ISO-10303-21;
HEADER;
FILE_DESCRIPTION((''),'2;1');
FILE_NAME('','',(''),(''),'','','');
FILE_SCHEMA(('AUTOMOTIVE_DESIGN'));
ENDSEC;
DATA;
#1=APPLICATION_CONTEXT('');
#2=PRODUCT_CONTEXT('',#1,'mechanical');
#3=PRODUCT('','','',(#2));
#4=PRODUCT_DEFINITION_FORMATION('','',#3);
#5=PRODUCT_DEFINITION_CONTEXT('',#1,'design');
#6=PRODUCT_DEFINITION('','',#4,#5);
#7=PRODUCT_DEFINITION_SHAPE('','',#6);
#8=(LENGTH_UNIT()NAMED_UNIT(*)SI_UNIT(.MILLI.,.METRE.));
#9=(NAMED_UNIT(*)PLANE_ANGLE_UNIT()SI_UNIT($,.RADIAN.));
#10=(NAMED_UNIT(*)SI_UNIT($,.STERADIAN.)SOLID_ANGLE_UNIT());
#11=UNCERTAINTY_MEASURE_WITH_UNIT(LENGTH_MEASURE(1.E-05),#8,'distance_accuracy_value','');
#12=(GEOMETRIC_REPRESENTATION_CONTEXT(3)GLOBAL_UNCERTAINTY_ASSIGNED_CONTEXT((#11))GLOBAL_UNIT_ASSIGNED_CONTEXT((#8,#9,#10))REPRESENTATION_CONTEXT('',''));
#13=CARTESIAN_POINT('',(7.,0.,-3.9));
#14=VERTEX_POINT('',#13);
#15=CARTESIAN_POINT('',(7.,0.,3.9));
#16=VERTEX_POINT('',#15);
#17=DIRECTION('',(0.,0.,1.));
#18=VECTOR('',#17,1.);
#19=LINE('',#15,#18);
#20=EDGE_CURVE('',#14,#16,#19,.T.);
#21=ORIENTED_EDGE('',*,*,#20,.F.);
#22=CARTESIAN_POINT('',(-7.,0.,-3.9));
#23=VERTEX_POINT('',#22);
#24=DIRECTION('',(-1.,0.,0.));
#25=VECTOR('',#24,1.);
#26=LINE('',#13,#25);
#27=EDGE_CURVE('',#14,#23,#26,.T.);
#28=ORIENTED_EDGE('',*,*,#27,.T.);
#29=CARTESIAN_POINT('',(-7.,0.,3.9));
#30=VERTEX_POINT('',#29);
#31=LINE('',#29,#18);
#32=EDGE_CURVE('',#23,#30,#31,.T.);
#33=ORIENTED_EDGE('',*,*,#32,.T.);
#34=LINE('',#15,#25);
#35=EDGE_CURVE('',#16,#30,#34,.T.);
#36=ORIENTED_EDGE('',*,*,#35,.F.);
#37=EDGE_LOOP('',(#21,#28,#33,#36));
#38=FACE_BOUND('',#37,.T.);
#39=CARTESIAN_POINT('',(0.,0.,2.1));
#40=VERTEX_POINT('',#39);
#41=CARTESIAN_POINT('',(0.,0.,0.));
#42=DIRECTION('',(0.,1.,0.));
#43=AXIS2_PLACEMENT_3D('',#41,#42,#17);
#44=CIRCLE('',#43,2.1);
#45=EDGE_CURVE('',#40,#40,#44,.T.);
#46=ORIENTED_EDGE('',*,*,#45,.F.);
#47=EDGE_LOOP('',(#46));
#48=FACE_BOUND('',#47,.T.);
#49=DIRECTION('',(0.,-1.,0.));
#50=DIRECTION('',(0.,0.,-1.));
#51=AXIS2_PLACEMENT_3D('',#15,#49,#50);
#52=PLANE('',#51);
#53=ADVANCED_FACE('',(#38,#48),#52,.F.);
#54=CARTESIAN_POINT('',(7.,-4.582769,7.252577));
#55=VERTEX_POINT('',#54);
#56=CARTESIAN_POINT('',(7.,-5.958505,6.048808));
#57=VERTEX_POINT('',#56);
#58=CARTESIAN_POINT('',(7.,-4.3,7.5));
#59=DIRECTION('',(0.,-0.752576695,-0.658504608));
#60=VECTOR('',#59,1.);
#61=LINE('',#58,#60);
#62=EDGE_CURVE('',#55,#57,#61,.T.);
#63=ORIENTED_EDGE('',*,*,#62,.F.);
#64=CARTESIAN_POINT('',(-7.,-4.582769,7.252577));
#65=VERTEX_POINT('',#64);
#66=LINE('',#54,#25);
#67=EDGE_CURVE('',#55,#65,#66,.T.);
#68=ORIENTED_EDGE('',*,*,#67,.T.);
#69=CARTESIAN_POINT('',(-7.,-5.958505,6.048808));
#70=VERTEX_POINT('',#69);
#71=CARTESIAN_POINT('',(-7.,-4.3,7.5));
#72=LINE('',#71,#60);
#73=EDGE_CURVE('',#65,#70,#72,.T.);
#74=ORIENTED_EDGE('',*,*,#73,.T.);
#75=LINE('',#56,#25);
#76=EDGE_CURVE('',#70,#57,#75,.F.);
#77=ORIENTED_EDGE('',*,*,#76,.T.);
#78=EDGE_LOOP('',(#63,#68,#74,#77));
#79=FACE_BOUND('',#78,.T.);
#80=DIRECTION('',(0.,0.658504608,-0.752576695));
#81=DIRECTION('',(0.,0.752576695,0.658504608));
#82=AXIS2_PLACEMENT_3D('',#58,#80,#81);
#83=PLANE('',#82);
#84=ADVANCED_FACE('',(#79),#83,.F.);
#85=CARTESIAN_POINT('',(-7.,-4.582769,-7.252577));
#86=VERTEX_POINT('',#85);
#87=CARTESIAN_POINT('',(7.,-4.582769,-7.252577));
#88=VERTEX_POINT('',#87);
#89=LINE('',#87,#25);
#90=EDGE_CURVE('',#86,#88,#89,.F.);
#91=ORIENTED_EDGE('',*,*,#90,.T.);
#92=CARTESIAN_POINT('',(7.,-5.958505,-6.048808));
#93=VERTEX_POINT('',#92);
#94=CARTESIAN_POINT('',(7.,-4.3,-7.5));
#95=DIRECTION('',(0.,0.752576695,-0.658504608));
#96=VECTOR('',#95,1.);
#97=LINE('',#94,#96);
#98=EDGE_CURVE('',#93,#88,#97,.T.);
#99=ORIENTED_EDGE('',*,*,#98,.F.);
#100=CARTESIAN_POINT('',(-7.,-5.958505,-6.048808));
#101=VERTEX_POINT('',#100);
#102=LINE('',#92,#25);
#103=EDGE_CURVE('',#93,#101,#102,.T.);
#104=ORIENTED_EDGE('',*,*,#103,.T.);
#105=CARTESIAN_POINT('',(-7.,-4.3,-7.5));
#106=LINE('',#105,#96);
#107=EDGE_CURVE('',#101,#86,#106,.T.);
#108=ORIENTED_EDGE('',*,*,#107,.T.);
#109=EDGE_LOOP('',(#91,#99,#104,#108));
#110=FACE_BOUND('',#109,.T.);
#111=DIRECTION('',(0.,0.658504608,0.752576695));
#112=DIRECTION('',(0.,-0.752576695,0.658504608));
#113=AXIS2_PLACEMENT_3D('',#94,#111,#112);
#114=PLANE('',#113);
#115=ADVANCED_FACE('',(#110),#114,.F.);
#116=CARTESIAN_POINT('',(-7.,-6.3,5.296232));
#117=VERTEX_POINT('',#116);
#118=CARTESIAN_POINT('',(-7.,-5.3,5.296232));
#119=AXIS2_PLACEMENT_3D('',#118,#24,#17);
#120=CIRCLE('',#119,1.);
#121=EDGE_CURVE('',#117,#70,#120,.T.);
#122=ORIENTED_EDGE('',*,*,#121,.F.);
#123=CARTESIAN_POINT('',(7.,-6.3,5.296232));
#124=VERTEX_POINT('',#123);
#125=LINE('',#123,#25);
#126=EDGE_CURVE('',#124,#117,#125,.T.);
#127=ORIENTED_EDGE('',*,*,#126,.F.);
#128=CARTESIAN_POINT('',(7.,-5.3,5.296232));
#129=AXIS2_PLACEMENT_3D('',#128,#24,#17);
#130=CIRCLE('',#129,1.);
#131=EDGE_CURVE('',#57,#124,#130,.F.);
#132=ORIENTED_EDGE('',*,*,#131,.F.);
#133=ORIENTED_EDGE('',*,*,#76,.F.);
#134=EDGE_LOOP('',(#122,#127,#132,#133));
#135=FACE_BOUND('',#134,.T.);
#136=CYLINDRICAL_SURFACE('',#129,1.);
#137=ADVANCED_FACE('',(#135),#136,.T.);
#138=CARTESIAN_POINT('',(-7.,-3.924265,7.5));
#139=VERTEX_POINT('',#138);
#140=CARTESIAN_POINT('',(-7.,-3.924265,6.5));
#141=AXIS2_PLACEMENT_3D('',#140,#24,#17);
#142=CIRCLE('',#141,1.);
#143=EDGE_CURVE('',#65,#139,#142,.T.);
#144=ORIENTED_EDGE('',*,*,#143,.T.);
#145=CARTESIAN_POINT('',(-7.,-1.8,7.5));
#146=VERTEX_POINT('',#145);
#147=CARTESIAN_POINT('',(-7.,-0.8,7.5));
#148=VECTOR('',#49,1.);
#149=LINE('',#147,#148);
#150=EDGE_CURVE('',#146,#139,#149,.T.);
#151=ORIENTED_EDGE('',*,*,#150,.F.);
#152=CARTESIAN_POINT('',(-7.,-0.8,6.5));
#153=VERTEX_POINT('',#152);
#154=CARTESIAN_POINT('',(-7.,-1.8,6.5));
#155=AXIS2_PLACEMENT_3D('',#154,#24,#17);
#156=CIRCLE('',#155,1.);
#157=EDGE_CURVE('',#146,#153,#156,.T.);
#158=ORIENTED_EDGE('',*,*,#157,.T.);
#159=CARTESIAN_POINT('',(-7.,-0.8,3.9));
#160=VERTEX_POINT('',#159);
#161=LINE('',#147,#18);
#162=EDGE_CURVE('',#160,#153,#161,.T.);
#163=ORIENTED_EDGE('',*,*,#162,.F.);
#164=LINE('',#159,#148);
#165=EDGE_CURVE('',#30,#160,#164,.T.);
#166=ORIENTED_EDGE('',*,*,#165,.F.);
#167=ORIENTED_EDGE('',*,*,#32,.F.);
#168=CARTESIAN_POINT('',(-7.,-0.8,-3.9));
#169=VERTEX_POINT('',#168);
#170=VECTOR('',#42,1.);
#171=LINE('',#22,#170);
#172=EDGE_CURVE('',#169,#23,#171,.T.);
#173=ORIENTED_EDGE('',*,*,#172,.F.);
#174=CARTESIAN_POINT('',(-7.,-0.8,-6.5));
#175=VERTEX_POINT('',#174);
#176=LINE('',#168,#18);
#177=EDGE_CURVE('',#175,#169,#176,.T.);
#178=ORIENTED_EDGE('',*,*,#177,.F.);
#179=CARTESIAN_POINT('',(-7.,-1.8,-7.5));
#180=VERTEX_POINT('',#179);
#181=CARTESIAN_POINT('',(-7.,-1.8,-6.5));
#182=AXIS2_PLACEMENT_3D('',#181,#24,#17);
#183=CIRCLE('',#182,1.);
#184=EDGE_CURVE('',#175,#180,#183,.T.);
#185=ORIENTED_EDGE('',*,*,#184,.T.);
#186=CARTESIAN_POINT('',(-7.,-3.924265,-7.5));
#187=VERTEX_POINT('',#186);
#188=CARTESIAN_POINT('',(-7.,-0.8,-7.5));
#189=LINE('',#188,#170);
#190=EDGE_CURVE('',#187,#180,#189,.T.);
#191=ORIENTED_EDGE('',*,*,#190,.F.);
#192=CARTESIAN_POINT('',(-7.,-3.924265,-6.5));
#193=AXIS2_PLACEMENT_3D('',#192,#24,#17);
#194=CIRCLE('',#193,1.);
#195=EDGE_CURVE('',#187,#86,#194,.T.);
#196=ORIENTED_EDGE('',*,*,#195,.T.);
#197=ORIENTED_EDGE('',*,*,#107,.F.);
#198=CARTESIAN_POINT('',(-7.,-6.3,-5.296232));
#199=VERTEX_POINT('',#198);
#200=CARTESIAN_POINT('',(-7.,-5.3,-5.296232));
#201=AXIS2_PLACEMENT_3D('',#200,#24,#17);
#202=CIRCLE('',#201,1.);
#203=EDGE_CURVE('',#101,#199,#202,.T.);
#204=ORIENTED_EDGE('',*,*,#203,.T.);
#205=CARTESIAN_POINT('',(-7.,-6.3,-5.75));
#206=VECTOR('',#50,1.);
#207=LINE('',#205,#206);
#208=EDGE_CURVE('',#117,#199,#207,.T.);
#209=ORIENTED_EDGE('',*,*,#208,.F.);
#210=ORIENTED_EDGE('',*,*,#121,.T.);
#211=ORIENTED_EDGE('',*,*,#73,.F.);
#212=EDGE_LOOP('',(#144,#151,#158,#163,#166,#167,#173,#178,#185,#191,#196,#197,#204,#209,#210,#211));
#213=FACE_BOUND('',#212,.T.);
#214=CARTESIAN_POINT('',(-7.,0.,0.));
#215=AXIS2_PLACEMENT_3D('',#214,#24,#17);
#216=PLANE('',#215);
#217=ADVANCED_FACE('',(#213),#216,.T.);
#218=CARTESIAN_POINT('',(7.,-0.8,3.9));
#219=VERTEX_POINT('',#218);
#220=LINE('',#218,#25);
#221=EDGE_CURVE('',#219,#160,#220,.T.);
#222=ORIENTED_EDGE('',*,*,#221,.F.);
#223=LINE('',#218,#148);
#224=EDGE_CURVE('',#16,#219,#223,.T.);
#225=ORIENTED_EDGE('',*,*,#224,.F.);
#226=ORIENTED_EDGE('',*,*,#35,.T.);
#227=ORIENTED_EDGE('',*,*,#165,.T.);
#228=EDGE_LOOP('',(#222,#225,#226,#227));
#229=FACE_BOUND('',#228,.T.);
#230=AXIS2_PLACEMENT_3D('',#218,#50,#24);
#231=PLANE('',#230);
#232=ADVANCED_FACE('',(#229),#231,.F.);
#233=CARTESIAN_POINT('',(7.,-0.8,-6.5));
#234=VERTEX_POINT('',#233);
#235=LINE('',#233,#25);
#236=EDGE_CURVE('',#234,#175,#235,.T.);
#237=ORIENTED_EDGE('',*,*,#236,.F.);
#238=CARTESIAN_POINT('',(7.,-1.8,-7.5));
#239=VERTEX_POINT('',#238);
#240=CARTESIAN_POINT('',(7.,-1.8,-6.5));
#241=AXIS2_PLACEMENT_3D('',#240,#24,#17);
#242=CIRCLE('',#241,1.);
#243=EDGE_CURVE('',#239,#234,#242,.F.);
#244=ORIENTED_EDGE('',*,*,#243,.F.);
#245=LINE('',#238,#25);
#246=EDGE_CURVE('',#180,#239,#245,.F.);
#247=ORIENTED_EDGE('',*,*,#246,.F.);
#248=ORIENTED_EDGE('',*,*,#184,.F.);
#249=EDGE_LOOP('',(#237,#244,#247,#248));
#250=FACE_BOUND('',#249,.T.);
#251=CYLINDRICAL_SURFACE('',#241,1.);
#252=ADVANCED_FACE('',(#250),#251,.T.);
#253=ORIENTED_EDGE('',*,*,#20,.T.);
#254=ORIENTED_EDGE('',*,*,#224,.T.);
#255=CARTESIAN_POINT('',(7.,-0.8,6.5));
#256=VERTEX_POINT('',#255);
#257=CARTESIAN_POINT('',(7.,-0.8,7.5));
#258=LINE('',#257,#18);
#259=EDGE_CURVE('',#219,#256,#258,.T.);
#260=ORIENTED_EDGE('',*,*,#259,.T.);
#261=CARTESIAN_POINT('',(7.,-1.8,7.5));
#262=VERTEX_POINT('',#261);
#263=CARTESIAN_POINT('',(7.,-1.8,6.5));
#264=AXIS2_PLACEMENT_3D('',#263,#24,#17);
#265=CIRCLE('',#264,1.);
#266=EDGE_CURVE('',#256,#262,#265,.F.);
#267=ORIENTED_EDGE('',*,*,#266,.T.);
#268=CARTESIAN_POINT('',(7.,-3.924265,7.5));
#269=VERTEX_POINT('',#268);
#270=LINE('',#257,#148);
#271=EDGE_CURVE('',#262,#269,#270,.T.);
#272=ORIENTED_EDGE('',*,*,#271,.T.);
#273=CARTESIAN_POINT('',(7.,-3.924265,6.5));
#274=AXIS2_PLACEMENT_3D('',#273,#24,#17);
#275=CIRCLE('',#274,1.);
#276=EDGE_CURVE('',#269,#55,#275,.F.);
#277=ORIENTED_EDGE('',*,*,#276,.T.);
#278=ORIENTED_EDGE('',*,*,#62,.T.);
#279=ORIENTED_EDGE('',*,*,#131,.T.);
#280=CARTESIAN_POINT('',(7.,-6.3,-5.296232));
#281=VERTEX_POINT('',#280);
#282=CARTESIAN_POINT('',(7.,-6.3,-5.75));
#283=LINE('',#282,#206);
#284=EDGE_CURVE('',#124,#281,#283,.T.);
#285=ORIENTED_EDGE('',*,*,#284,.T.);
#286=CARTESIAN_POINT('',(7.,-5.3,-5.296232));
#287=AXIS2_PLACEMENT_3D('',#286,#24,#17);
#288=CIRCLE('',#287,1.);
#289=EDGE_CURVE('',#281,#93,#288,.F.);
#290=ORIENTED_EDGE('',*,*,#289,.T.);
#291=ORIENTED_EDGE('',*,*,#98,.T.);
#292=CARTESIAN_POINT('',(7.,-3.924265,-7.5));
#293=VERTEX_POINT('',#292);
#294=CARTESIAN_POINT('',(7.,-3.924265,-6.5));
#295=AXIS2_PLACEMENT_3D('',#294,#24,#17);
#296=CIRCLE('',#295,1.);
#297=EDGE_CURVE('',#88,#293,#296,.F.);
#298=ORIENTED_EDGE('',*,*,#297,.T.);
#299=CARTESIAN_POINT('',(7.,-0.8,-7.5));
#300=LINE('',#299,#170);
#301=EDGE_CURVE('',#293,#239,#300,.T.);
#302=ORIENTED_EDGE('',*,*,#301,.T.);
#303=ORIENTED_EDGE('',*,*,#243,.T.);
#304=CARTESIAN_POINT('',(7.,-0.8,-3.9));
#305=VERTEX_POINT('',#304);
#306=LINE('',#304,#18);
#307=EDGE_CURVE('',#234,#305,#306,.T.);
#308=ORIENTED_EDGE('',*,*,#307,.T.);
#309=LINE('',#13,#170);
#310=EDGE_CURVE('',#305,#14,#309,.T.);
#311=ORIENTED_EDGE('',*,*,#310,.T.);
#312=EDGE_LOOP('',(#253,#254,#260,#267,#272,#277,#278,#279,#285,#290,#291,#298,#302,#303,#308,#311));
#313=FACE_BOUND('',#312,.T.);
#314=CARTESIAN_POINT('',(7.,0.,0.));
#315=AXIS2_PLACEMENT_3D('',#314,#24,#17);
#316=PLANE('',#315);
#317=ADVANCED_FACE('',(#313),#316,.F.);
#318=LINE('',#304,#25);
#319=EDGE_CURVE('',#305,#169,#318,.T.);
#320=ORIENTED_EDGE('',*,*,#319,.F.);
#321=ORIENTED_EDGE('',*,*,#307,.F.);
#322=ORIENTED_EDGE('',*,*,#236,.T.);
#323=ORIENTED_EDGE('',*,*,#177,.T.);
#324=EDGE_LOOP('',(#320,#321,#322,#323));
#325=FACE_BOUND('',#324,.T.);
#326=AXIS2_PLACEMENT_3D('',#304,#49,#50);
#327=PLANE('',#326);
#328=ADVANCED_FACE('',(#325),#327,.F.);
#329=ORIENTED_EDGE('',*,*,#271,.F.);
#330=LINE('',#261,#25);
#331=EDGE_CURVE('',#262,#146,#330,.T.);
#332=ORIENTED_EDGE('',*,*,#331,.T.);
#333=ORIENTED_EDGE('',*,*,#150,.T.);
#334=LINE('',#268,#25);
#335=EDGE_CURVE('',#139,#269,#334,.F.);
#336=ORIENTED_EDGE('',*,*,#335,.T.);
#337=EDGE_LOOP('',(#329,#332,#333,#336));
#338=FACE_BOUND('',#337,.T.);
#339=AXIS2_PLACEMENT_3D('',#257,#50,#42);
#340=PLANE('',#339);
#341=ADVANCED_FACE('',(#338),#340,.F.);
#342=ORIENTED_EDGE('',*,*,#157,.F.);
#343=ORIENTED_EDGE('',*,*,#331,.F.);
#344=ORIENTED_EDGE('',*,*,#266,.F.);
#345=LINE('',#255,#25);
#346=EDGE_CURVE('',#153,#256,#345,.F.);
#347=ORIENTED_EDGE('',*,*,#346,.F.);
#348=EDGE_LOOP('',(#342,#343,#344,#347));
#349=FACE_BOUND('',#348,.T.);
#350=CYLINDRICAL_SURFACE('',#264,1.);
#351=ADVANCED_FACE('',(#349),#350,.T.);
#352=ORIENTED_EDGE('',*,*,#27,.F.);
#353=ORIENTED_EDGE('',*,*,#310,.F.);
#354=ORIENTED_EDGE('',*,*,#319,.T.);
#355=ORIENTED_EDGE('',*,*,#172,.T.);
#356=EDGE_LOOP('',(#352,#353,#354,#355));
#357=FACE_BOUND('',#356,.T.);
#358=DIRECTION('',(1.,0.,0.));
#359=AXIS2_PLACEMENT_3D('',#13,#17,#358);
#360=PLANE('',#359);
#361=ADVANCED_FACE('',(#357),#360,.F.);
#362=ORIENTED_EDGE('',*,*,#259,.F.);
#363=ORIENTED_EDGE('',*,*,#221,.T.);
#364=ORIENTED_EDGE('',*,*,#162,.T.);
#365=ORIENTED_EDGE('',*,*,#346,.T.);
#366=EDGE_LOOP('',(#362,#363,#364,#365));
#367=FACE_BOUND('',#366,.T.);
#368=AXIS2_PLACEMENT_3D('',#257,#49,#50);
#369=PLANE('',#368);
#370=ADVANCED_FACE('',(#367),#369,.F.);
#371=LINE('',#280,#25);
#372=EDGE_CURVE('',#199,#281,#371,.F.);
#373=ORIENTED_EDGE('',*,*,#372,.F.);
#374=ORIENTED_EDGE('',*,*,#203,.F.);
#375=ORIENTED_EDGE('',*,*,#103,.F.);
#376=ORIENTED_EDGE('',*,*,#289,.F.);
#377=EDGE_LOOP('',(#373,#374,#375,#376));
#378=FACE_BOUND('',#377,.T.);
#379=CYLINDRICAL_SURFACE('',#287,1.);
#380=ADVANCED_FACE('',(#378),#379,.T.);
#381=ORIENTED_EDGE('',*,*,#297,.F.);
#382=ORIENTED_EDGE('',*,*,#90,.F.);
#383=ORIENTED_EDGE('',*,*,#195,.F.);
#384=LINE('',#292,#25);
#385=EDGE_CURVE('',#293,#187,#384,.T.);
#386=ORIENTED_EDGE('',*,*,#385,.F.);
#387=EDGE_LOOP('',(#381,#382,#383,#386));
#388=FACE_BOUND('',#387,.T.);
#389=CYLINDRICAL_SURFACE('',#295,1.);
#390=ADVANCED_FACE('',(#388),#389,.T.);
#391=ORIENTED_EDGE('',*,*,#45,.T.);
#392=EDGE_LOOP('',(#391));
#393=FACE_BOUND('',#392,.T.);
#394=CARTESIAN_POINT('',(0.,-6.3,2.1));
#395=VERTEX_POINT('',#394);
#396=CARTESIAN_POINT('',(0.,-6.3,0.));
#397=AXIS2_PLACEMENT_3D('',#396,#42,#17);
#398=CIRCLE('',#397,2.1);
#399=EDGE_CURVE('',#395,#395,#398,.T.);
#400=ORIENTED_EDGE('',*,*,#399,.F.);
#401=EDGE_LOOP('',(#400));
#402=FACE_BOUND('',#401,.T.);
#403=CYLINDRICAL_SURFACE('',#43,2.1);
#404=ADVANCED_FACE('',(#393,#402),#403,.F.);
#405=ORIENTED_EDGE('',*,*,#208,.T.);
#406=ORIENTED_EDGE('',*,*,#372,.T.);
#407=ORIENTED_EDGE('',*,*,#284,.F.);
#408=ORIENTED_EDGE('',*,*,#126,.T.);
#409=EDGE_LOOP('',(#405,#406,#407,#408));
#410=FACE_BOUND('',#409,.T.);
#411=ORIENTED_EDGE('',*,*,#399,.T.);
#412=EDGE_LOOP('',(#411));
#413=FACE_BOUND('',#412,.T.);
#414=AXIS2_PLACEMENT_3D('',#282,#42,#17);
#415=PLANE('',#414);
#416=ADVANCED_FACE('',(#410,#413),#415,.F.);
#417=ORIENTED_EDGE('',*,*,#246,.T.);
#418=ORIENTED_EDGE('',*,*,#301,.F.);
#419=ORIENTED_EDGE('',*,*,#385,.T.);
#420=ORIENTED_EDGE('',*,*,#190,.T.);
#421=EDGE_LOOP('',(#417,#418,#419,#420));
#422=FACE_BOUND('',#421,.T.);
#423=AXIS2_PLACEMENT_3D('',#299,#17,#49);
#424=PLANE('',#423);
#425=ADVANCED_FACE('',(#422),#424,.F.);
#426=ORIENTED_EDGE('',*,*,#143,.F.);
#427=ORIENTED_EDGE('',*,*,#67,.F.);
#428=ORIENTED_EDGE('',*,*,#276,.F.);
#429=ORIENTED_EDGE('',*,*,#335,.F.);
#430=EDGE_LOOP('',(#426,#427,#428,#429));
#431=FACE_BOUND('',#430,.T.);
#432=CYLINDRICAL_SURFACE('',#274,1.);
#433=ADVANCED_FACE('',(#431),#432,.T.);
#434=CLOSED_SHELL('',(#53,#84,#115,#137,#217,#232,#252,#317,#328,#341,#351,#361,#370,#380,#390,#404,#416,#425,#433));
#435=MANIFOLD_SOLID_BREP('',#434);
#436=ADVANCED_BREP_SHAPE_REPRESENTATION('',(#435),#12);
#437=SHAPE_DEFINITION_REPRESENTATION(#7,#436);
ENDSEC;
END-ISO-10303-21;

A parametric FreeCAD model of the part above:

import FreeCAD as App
import Part
import Sketcher


def edges_at(feature, points):
    """Names of the edges that pass closest to the given points."""
    edges = feature.Shape.Edges
    near = lambda p: min(range(len(edges)), key=lambda i: edges[i].distToShape(Part.Vertex(*p))[0])
    return sorted({f"Edge{near(p) + 1}" for p in points})


def add_polygon(sketch, points):
    """Adds a closed chain of lines whose ends are joined by coincident constraints."""
    first, n = sketch.GeometryCount, len(points)
    for a, b in zip(points, points[1:] + points[:1]):
        sketch.addGeometry(Part.LineSegment(App.Vector(*a, 0), App.Vector(*b, 0)), False)
    for i in range(n):
        sketch.addConstraint(Sketcher.Constraint("Coincident", first + i, 2, first + (i + 1) % n, 1))

doc = App.newDocument("Part")
body = doc.addObject("PartDesign::Body", "Body")

sketch1 = body.newObject("Sketcher::SketchObject", "Sketch")
sketch1.AttachmentSupport = (doc.getObject("YZ_Plane"), [""])
sketch1.MapMode = "FlatFace"
sketch1.AttachmentOffset = App.Placement(App.Vector(0, 0, -7), App.Rotation())
add_polygon(sketch1, [(-6.3, 5.8), (-6.3, -5.8), (-4.3, -7.5), (-0.8, -7.5), (-0.8, -3.9), (0, -3.9), (0, 3.9), (-0.8, 3.9), (-0.8, 7.5), (-4.3, 7.5)])
sketch1.addConstraint([
    Sketcher.Constraint("Vertical", 0),
    Sketcher.Constraint("Horizontal", 2),
    Sketcher.Constraint("Vertical", 3),
    Sketcher.Constraint("Horizontal", 4),
    Sketcher.Constraint("Vertical", 5),
    Sketcher.Constraint("Horizontal", 6),
    Sketcher.Constraint("Vertical", 7),
    Sketcher.Constraint("Horizontal", 8),
    Sketcher.Constraint("Symmetric", 4, 2, 5, 2, -1, 1),
    Sketcher.Constraint("Symmetric", 2, 2, 7, 2, -1),
    Sketcher.Constraint("Vertical", 1, 2, 8, 2),
    Sketcher.Constraint("Equal", 1, 9),
    Sketcher.Constraint("DistanceX", 2, 1, 2, 2, 3.5),
    Sketcher.Constraint("DistanceX", 4, 1, 4, 2, 0.8),
    Sketcher.Constraint("DistanceY", 0, 2, 0, 1, 11.5),
    Sketcher.Constraint("DistanceY", 3, 1, 3, 2, 3.6),
    Sketcher.Constraint("DistanceY", 5, 1, 5, 2, 7.8),
    Sketcher.Constraint("DistanceX", 0, 2, 1, 2, 2.0),
])
pad1 = body.newObject("PartDesign::Pad", "Pad")
pad1.Profile = sketch1
pad1.Length = 14
doc.recompute()

fillet = body.newObject("PartDesign::Fillet", "Fillet")
fillet.Base = (pad1, edges_at(pad1, [
    (0, -0.8, -7.5),
    (0, -4.3, -7.5),
    (0, -6.3, -5.75),
    (0, -6.3, 5.75),
    (0, -4.3, 7.5),
    (0, -0.8, 7.5),
]))
fillet.Radius = 1

sketch2 = body.newObject("Sketcher::SketchObject", "Sketch001")
sketch2.AttachmentSupport = (doc.getObject("XZ_Plane"), [""])
sketch2.MapMode = "FlatFace"
sketch2.addGeometry(Part.Circle(App.Vector(0, 0, 0), App.Vector(0, 0, 1), 2.1), False)
sketch2.addConstraint([
    Sketcher.Constraint("Coincident", 0, 3, -1, 1),
    Sketcher.Constraint("Diameter", 0, 4.2),
])
doc.recompute()
hole = body.newObject("PartDesign::Hole", "Hole")
hole.Profile = sketch2
hole.ThreadType = "None"
hole.Diameter = 4.2
hole.DepthType = "ThroughAll"
hole.Reversed = True

doc.recompute()
